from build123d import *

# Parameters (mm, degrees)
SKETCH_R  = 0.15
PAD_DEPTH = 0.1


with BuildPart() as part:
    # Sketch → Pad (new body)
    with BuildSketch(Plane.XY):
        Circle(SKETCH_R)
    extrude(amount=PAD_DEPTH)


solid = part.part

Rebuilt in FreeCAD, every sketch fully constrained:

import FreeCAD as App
import Part
import Sketcher

V = App.Vector

doc = App.newDocument("Part")
params = doc.addObject("Spreadsheet::Sheet", "Params")
for row, (alias, value) in enumerate([
    ("sketch1_diameter", "0.3 mm"),
    ("pad1_length", "0.1 mm"),
], start=1):
    params.set(f"A{row}", alias)
    params.set(f"B{row}", "=" + value)
    params.setAlias(f"B{row}", alias)

body = doc.addObject("PartDesign::Body", "Body")

# Sketch on XY plane
sketch1 = body.newObject("Sketcher::SketchObject", "Sketch")
sketch1.AttachmentSupport = (doc.getObject("XY_Plane"), [""])
sketch1.MapMode = "FlatFace"
sketch1.addGeometry(Part.Circle(V(0, 0, 0), V(0, 0, 1), 0.15), False)
sketch1.addConstraint([
    Sketcher.Constraint("Coincident", 0, 3, -1, 1),
    Sketcher.Constraint("Diameter", 0, 0.3),
])
sketch1.setExpression("Constraints[1]", "Params.sketch1_diameter")
pad1 = body.newObject("PartDesign::Pad", "Pad")
pad1.Profile = sketch1
pad1.setExpression("Length", "Params.pad1_length")

doc.recompute()
